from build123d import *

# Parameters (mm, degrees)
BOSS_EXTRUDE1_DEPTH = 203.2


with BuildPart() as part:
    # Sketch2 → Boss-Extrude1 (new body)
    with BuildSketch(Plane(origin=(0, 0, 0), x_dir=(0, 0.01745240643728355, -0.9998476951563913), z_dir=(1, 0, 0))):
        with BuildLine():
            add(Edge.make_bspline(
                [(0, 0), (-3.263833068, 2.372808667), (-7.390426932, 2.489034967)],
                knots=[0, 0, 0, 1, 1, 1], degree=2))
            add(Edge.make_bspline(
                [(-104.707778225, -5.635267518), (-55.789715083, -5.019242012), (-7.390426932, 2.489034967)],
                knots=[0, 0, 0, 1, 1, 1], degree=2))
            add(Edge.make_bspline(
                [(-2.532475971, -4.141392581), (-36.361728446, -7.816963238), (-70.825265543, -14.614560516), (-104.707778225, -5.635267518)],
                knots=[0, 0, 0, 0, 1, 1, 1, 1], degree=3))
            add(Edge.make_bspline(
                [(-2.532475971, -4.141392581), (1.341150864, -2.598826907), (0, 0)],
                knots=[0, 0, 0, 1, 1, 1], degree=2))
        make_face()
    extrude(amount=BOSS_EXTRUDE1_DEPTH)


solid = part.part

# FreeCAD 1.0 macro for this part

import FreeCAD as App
import Part
import Sketcher
from FreeCAD import Vector
Q = App.Units.Quantity

doc = App.newDocument("Part")
body = doc.addObject("PartDesign::Body", "Body")

sketch1 = body.newObject("Sketcher::SketchObject", "Sketch")
sketch1.AttachmentSupport = (doc.getObject("YZ_Plane"), [""])
sketch1.MapMode = "FlatFace"
sketch1.addGeometry(Part.BSplineCurve([Vector(0, 0, 0), Vector(2.315486, 3.304747, 0), Vector(2.359675, 7.432741, 0)], [3, 3], [0, 1], False, 2, [1, 1, 1], False), False)
sketch1.addGeometry(Part.BSplineCurve([Vector(-7.461812, 104.593482, 0), Vector(-5.992142, 55.69362, 0), Vector(2.359675, 7.432741, 0)], [3, 3], [0, 1], False, 2, [1, 1, 1], False), False)
sketch1.addGeometry(Part.BSplineCurve([Vector(-4.18496, 2.459813, 0), Vector(-8.450372, 36.219766, 0), Vector(-15.848406, 70.559419, 0), Vector(-7.461812, 104.593482, 0)], [4, 4], [0, 1], False, 3, [1, 1, 1, 1], False), False)
sketch1.addGeometry(Part.BSplineCurve([Vector(-4.18496, 2.459813, 0), Vector(-2.575025, -1.386302, 0), Vector(0, 0, 0)], [3, 3], [0, 1], False, 2, [1, 1, 1], False), False)
sketch1.addConstraint(Sketcher.Constraint("Block", 0))
sketch1.addConstraint(Sketcher.Constraint("Block", 1))
sketch1.addConstraint(Sketcher.Constraint("Block", 2))
sketch1.addConstraint(Sketcher.Constraint("Block", 3))
pad1 = body.newObject("PartDesign::Pad", "Pad")
pad1.Profile = sketch1
pad1.Length = Q("8 in")

doc.recompute()
